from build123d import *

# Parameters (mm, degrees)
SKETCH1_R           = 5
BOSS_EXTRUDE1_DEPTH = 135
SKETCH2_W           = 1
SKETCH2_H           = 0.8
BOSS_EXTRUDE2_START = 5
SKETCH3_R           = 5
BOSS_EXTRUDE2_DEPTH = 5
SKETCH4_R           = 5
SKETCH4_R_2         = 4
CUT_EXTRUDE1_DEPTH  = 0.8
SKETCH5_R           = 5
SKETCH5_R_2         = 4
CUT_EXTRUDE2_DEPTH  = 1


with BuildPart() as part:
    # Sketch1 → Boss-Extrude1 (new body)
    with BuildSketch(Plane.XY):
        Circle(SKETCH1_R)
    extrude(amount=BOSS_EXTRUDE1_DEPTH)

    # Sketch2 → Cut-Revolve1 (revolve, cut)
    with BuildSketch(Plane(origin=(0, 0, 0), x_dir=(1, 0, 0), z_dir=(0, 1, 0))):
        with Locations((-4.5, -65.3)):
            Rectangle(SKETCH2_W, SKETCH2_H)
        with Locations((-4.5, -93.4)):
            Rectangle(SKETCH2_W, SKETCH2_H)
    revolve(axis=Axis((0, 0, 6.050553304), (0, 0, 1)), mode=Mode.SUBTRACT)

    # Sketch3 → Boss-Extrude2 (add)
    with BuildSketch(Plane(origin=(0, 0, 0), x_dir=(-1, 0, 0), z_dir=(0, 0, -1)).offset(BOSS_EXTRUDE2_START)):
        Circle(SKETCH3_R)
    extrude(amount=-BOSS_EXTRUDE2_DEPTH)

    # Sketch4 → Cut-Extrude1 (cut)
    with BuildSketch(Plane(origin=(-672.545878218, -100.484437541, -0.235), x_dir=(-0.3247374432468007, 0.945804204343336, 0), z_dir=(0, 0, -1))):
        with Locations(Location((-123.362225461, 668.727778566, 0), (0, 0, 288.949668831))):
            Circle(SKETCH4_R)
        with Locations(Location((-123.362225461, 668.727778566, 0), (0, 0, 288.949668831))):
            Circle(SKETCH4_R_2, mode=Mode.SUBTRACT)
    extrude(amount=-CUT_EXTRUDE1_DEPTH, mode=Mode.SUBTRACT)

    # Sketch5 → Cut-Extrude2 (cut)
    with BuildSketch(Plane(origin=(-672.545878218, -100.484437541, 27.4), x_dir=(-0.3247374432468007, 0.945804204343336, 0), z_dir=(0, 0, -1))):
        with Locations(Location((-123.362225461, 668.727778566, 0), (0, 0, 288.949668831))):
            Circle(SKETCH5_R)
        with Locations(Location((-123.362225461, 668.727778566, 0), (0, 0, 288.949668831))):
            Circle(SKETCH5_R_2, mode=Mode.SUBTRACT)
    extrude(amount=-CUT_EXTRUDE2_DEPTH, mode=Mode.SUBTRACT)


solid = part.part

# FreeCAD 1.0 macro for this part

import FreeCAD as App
import Part
import Sketcher
from FreeCAD import Vector
Q = App.Units.Quantity


def add_polygon(sketch, points):
    """Adds a closed chain of lines whose ends are joined by coincident constraints."""
    first, n = sketch.GeometryCount, len(points)
    for a, b in zip(points, points[1:] + points[:1]):
        sketch.addGeometry(Part.LineSegment(App.Vector(*a, 0), App.Vector(*b, 0)), False)
    for i in range(n):
        sketch.addConstraint(Sketcher.Constraint("Coincident", first + i, 2, first + (i + 1) % n, 1))

doc = App.newDocument("Part")
body = doc.addObject("PartDesign::Body", "Body")

# Sketch on XY plane
sketch1 = body.newObject("Sketcher::SketchObject", "Sketch")
sketch1.AttachmentSupport = (doc.getObject("XY_Plane"), [""])
sketch1.MapMode = "FlatFace"
sketch1.addGeometry(Part.Circle(Vector(0, 0, 0), Vector(0, 0, 1), 5), False)
sketch1.addConstraint(Sketcher.Constraint("Coincident", 0, 3, -1, 1))
sketch1.addConstraint(Sketcher.Constraint("Diameter", 0, Q("10 mm")))
pad1 = body.newObject("PartDesign::Pad", "Pad")
pad1.Profile = sketch1
pad1.Length = 135

# Sketch on XZ plane
sketch2 = body.newObject("Sketcher::SketchObject", "Sketch001")
sketch2.AttachmentSupport = (doc.getObject("XZ_Plane"), [""])
sketch2.MapMode = "FlatFace"
add_polygon(sketch2, [(-5, 64.9), (-5, 65.7), (-4, 65.7), (-4, 64.9)])  # lines 0-3
add_polygon(sketch2, [(-5, 93), (-5, 93.8), (-4, 93.8), (-4, 93)])  # lines 4-7
sketch2.addConstraint(Sketcher.Constraint("Vertical", 0))
sketch2.addConstraint(Sketcher.Constraint("Horizontal", 1))
sketch2.addConstraint(Sketcher.Constraint("Vertical", 2))
sketch2.addConstraint(Sketcher.Constraint("Horizontal", 3))
sketch2.addConstraint(Sketcher.Constraint("Vertical", 4))
sketch2.addConstraint(Sketcher.Constraint("Horizontal", 5))
sketch2.addConstraint(Sketcher.Constraint("Vertical", 6))
sketch2.addConstraint(Sketcher.Constraint("Horizontal", 7))
sketch2.addConstraint(Sketcher.Constraint("Vertical", 3, 2, 4, 2))
sketch2.addConstraint(Sketcher.Constraint("Vertical", 2, 2, 5, 2))
sketch2.addConstraint(Sketcher.Constraint("Equal", 2, 4))
sketch2.addConstraint(Sketcher.Constraint("DistanceX", 1, 1, 1, 2, Q("1 mm")))
sketch2.addConstraint(Sketcher.Constraint("DistanceY", 0, 1, 0, 2, Q("0.8 mm")))
sketch2.addConstraint(Sketcher.Constraint("DistanceX", 0, 2, -1, 1, Q("5 mm")))
sketch2.addConstraint(Sketcher.Constraint("DistanceY", -1, 1, 6, 2, Q("93 mm")))
sketch2.addConstraint(Sketcher.Constraint("DistanceY", -1, 1, 0, 2, Q("65.7 mm")))
groove = body.newObject("PartDesign::Groove", "Groove")
groove.Profile = sketch2
groove.ReferenceAxis = (sketch2, ["V_Axis"])
groove.Angle = 360

# Sketch on XY plane
sketch3 = body.newObject("Sketcher::SketchObject", "Sketch002")
sketch3.AttachmentSupport = (doc.getObject("XY_Plane"), [""])
sketch3.MapMode = "FlatFace"
sketch3.AttachmentOffset = App.Placement(Vector(0, 0, -5), App.Rotation())
sketch3.addGeometry(Part.Circle(Vector(0, 0, 0), Vector(0, 0, 1), 5), False)
sketch3.addConstraint(Sketcher.Constraint("Coincident", 0, 3, -1, 1))
sketch3.addConstraint(Sketcher.Constraint("Diameter", 0, Q("10 mm")))
pad2 = body.newObject("PartDesign::Pad", "Pad001")
pad2.Profile = sketch3
pad2.Length = 5

# Sketch on XY plane
sketch4 = body.newObject("Sketcher::SketchObject", "Sketch003")
sketch4.AttachmentSupport = (doc.getObject("XY_Plane"), [""])
sketch4.MapMode = "FlatFace"
sketch4.AttachmentOffset = App.Placement(Vector(0, 0, -0.235), App.Rotation())
sketch4.addGeometry(Part.Circle(Vector(0, 0, 0), Vector(0, 0, 1), 5), False)
sketch4.addGeometry(Part.Circle(Vector(0, 0, 0), Vector(0, 0, 1), 4), False)
sketch4.addConstraint(Sketcher.Constraint("Coincident", 0, 3, -1, 1))
sketch4.addConstraint(Sketcher.Constraint("Coincident", 1, 3, -1, 1))
sketch4.addConstraint(Sketcher.Constraint("Diameter", 0, Q("10 mm")))
sketch4.addConstraint(Sketcher.Constraint("Diameter", 1, Q("8 mm")))
pocket1 = body.newObject("PartDesign::Pocket", "Pocket")
pocket1.Profile = sketch4
pocket1.Length = 0.8
pocket1.Reversed = True

# Sketch on XY plane
sketch5 = body.newObject("Sketcher::SketchObject", "Sketch004")
sketch5.AttachmentSupport = (doc.getObject("XY_Plane"), [""])
sketch5.MapMode = "FlatFace"
sketch5.AttachmentOffset = App.Placement(Vector(0, 0, 27.4), App.Rotation())
sketch5.addGeometry(Part.Circle(Vector(0, 0, 0), Vector(0, 0, 1), 5), False)
sketch5.addGeometry(Part.Circle(Vector(0, 0, 0), Vector(0, 0, 1), 4), False)
sketch5.addConstraint(Sketcher.Constraint("Coincident", 0, 3, -1, 1))
sketch5.addConstraint(Sketcher.Constraint("Coincident", 1, 3, -1, 1))
sketch5.addConstraint(Sketcher.Constraint("Diameter", 0, Q("10 mm")))
sketch5.addConstraint(Sketcher.Constraint("Diameter", 1, Q("8 mm")))
pocket2 = body.newObject("PartDesign::Pocket", "Pocket001")
pocket2.Profile = sketch5
pocket2.Length = 1
pocket2.Reversed = True

doc.recompute()
